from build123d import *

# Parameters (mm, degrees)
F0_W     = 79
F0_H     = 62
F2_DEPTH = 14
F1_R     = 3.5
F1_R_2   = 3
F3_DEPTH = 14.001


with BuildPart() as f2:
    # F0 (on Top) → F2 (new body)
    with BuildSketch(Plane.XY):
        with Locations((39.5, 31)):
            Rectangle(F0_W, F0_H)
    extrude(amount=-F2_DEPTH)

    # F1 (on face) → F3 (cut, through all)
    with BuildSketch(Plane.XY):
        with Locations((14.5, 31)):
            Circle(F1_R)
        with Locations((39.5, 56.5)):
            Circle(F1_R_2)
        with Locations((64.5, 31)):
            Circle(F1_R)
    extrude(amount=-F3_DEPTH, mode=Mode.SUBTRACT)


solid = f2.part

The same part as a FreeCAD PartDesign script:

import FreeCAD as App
import Part
import Sketcher
from FreeCAD import Vector


def add_polygon(sketch, points):
    """Adds a closed chain of lines whose ends are joined by coincident constraints."""
    first, n = sketch.GeometryCount, len(points)
    for a, b in zip(points, points[1:] + points[:1]):
        sketch.addGeometry(Part.LineSegment(App.Vector(*a, 0), App.Vector(*b, 0)), False)
    for i in range(n):
        sketch.addConstraint(Sketcher.Constraint("Coincident", first + i, 2, first + (i + 1) % n, 1))

doc = App.newDocument("Part")
body = doc.addObject("PartDesign::Body", "Body")

sketch1 = doc.addObject("Sketcher::SketchObject", "Sketch")
body.addObject(sketch1)
sketch1.AttachmentSupport = (doc.XY_Plane, [""])
sketch1.MapMode = "FlatFace"
add_polygon(sketch1, [(0, 62), (0, 0), (79, 0), (79, 62)])
sketch1.addConstraint(Sketcher.Constraint("Vertical", 0))
sketch1.addConstraint(Sketcher.Constraint("Horizontal", 1))
sketch1.addConstraint(Sketcher.Constraint("Vertical", 2))
sketch1.addConstraint(Sketcher.Constraint("Horizontal", 3))
sketch1.addConstraint(Sketcher.Constraint("Coincident", 0, 2, -1, 1))
sketch1.addConstraint(Sketcher.Constraint("DistanceX", 1, 1, 1, 2, 79.0))
sketch1.addConstraint(Sketcher.Constraint("DistanceY", 0, 2, 0, 1, 62.0))
pad1 = doc.addObject("PartDesign::Pad", "Pad")
body.addObject(pad1)
pad1.Profile = sketch1
pad1.Length = 14
pad1.Reversed = True

sketch2 = doc.addObject("Sketcher::SketchObject", "Sketch001")
body.addObject(sketch2)
sketch2.AttachmentSupport = (doc.XY_Plane, [""])
sketch2.MapMode = "FlatFace"
sketch2.addGeometry(Part.Circle(Vector(14.5, 31, 0), Vector(0, 0, 1), 3.5), False)
sketch2.addGeometry(Part.Circle(Vector(39.5, 56.5, 0), Vector(0, 0, 1), 3), False)
sketch2.addGeometry(Part.Circle(Vector(64.5, 31, 0), Vector(0, 0, 1), 3.5), False)
sketch2.addConstraint(Sketcher.Constraint("Equal", 0, 2))
sketch2.addConstraint(Sketcher.Constraint("Horizontal", 0, 3, 2, 3))
sketch2.addConstraint(Sketcher.Constraint("Diameter", 0, 7.0))
sketch2.addConstraint(Sketcher.Constraint("Diameter", 1, 6.0))
sketch2.addConstraint(Sketcher.Constraint("DistanceY", -1, 1, 0, 3, 31.0))
sketch2.addConstraint(Sketcher.Constraint("DistanceX", 0, 3, 1, 3, 25.0))
sketch2.addConstraint(Sketcher.Constraint("DistanceX", 1, 3, 2, 3, 25.0))
sketch2.addConstraint(Sketcher.Constraint("DistanceX", -1, 1, 0, 3, 14.5))
sketch2.addConstraint(Sketcher.Constraint("DistanceY", -1, 1, 1, 3, 56.5))
pocket1 = doc.addObject("PartDesign::Pocket", "Pocket")
body.addObject(pocket1)
pocket1.Profile = sketch2
pocket1.Type = "ThroughAll"

doc.recompute()
